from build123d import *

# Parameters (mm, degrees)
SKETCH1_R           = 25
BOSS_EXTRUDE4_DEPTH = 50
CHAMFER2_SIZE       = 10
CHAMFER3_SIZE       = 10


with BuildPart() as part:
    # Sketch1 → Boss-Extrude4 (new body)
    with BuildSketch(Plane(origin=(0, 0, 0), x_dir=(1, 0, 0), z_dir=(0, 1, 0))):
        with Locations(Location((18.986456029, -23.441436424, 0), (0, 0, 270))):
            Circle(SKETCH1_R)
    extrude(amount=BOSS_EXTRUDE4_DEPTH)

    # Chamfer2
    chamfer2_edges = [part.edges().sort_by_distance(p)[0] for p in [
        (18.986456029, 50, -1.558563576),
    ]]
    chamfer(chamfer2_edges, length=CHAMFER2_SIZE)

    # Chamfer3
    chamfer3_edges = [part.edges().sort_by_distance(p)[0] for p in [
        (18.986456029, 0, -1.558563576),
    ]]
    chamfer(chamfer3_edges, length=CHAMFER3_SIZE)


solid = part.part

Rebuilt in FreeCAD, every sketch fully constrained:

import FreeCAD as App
import Part
import Sketcher

V = App.Vector


def edges_at(feature, points):
    """Names of the edges that pass closest to the given points."""
    edges = feature.Shape.Edges
    near = lambda p: min(range(len(edges)), key=lambda i: edges[i].distToShape(Part.Vertex(*p))[0])
    return sorted({f"Edge{near(p) + 1}" for p in points})

doc = App.newDocument("Part")
body = doc.addObject("PartDesign::Body", "Body")

sketch1 = body.newObject("Sketcher::SketchObject", "Sketch")
sketch1.AttachmentSupport = (doc.getObject("XZ_Plane"), [""])
sketch1.MapMode = "FlatFace"
sketch1.addGeometry(Part.Circle(V(18.986456, 23.441436, 0), V(0, 0, 1), 25), False)
sketch1.addConstraint([
    Sketcher.Constraint("Diameter", 0, 50.0),
    Sketcher.Constraint("DistanceX", -1, 1, 0, 3, 18.986456),
    Sketcher.Constraint("DistanceY", -1, 1, 0, 3, 23.441436),
])
pad1 = body.newObject("PartDesign::Pad", "Pad")
pad1.Profile = sketch1
pad1.Length = 50
pad1.Reversed = True
doc.recompute()

chamfer = body.newObject("PartDesign::Chamfer", "Chamfer")
chamfer.Base = (pad1, edges_at(pad1, [(18.986, 50, -1.559)]))
chamfer.Size = 10
doc.recompute()

chamfer2 = body.newObject("PartDesign::Chamfer", "Chamfer001")
chamfer2.Base = (chamfer, edges_at(chamfer, [(18.986, 0, -1.559)]))
chamfer2.Size = 10

doc.recompute()
